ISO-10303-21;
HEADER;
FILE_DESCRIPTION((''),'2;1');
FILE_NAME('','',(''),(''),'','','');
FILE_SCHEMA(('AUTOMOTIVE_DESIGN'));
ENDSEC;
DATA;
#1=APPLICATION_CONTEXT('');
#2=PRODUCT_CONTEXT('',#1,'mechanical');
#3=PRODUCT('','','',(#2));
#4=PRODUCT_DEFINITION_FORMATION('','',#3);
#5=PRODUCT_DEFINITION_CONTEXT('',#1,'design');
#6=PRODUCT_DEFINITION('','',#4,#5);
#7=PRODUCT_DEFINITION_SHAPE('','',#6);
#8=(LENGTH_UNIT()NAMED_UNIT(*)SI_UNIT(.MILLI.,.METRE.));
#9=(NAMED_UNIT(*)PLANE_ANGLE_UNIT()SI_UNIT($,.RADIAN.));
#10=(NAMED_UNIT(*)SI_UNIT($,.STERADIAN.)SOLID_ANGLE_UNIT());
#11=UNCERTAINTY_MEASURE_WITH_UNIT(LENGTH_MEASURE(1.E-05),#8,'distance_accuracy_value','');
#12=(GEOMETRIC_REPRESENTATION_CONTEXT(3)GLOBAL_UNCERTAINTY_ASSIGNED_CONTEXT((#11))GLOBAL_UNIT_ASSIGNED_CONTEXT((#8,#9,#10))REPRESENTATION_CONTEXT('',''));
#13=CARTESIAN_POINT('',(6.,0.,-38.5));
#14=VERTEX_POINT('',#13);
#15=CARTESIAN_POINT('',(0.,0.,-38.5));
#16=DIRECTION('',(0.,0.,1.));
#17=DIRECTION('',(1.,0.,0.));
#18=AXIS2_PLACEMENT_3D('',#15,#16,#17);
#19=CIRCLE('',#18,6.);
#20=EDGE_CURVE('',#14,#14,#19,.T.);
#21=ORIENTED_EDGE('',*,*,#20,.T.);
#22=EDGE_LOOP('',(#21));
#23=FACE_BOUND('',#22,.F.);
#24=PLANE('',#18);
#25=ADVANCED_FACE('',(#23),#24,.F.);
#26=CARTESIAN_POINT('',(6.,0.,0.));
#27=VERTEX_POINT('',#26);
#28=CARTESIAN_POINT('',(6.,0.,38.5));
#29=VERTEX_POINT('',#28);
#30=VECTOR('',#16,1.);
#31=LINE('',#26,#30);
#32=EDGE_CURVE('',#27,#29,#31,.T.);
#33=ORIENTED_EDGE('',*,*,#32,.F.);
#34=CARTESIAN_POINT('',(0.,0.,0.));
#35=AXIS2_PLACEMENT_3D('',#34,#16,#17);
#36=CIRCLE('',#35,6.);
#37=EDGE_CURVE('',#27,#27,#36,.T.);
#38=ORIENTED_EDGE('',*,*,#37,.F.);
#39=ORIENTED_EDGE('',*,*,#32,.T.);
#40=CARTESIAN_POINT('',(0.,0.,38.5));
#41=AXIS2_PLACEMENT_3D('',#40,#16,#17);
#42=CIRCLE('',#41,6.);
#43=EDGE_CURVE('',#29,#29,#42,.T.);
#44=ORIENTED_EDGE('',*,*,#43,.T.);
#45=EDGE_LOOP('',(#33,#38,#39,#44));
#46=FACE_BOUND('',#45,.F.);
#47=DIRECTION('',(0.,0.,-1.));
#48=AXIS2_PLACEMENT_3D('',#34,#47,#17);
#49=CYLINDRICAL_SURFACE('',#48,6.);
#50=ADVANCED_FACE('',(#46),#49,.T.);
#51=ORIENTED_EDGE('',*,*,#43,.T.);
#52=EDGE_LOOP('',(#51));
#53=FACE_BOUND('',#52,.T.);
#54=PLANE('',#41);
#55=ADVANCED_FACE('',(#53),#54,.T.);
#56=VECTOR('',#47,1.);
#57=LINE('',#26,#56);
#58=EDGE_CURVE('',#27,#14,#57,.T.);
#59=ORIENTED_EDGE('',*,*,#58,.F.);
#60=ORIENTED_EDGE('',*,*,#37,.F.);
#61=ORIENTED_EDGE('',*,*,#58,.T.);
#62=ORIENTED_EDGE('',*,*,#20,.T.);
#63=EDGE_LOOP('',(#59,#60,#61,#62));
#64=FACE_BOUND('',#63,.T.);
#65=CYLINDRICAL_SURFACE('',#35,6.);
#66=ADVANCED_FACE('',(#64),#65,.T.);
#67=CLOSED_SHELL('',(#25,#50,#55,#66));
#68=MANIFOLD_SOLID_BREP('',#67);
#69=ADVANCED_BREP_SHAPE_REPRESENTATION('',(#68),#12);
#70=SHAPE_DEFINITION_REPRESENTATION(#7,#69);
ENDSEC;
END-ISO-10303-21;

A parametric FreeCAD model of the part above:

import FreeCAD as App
import Part
import Sketcher

V = App.Vector
Q = App.Units.Quantity

doc = App.newDocument("Part")
body = doc.addObject("PartDesign::Body", "Body")

# Sketch on XY plane
sketch1 = doc.addObject("Sketcher::SketchObject", "Sketch")
body.addObject(sketch1)
sketch1.AttachmentSupport = (doc.XY_Plane, [""])
sketch1.MapMode = "FlatFace"
sketch1.addGeometry(Part.Circle(V(0, 0, 0), V(0, 0, 1), 6), False)
sketch1.addConstraint([
    Sketcher.Constraint("Coincident", 0, 3, -1, 1),
    Sketcher.Constraint("Diameter", 0, Q("12 mm")),
])
pad1 = doc.addObject("PartDesign::Pad", "Pad")
body.addObject(pad1)
pad1.Profile = sketch1
pad1.Length = 77
pad1.Midplane = True

doc.recompute()
